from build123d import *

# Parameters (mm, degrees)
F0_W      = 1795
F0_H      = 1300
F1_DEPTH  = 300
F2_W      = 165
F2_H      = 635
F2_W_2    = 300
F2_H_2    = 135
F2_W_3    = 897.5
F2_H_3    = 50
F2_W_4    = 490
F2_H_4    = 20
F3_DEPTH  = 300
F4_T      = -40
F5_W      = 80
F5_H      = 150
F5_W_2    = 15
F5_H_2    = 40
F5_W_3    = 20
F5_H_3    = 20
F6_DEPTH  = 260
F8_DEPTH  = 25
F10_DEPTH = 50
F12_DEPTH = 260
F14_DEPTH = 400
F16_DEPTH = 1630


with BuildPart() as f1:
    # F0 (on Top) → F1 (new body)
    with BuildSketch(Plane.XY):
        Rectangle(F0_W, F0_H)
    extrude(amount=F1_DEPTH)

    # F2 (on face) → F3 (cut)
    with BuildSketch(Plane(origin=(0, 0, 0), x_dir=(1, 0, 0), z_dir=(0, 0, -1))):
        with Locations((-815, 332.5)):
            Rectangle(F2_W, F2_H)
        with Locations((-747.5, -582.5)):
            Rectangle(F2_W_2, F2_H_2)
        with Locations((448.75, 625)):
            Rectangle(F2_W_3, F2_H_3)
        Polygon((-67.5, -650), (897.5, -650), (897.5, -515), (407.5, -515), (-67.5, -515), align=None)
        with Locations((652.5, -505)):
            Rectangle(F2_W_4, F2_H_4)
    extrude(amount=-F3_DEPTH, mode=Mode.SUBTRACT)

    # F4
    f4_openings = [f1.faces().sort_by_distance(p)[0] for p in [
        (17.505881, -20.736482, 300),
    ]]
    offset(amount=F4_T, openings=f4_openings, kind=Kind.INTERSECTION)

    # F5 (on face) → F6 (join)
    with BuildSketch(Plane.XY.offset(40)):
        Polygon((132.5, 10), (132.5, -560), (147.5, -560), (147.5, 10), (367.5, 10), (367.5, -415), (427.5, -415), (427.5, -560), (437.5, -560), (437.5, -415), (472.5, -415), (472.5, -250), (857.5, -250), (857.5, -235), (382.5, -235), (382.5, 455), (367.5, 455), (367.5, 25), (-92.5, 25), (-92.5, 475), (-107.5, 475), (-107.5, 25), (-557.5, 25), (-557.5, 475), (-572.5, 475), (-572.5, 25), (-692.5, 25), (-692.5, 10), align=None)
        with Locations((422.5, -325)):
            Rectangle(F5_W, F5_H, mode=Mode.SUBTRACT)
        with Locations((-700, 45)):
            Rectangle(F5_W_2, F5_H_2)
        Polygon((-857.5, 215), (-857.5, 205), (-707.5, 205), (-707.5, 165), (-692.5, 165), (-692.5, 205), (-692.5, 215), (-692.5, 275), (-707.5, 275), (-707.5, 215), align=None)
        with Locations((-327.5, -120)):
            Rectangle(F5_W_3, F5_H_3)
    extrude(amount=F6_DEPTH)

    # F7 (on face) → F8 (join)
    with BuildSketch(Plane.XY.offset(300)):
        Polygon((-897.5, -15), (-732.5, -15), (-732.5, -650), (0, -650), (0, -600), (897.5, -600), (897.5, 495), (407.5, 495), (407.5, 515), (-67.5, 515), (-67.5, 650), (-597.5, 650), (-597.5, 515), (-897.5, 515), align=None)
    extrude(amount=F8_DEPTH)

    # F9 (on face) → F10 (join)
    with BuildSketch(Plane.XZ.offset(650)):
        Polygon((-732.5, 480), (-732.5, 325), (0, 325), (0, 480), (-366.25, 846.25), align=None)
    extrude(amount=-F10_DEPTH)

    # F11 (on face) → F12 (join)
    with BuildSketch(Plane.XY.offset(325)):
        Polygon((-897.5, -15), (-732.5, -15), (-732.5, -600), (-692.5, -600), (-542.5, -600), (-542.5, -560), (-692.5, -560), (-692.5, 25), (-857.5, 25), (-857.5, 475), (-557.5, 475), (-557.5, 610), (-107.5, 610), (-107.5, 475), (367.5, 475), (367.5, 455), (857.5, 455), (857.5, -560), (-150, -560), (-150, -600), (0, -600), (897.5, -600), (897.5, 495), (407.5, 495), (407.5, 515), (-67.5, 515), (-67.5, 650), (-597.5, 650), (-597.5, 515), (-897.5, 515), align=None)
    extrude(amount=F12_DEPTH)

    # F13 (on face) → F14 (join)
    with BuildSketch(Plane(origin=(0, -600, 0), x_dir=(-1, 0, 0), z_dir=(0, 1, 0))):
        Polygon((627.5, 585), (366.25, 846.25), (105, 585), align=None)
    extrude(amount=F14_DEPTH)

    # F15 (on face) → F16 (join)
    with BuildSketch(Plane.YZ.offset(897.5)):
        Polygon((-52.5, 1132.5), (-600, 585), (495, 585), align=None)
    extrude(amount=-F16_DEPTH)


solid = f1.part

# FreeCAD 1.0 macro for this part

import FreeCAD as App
import Part
import Sketcher

V = App.Vector
Q = App.Units.Quantity


def faces_at(feature, points):
    """Names of the faces that lie closest to the given points."""
    faces = feature.Shape.Faces
    near = lambda p: min(range(len(faces)), key=lambda i: faces[i].distToShape(Part.Vertex(*p))[0])
    return sorted({f"Face{near(p) + 1}" for p in points})


def add_polygon(sketch, points):
    """Adds a closed chain of lines whose ends are joined by coincident constraints."""
    first, n = sketch.GeometryCount, len(points)
    for a, b in zip(points, points[1:] + points[:1]):
        sketch.addGeometry(Part.LineSegment(App.Vector(*a, 0), App.Vector(*b, 0)), False)
    for i in range(n):
        sketch.addConstraint(Sketcher.Constraint("Coincident", first + i, 2, first + (i + 1) % n, 1))

doc = App.newDocument("Part")
body = doc.addObject("PartDesign::Body", "Body")

# Sketch on XY plane
sketch1 = body.newObject("Sketcher::SketchObject", "Sketch")
sketch1.AttachmentSupport = (doc.getObject("XY_Plane"), [""])
sketch1.MapMode = "FlatFace"
add_polygon(sketch1, [(-898, 650), (-898, -650), (898, -650), (898, 650)])  # lines 0-3
sketch1.addConstraint([
    Sketcher.Constraint("Vertical", 0),
    Sketcher.Constraint("Horizontal", 1),
    Sketcher.Constraint("Vertical", 2),
    Sketcher.Constraint("Horizontal", 3),
    Sketcher.Constraint("Symmetric", 0, 2, 2, 2, -1, 1),
    Sketcher.Constraint("DistanceX", 1, 1, 1, 2, Q("1795 mm")),
    Sketcher.Constraint("DistanceY", 0, 2, 0, 1, Q("1300 mm")),
])
pad1 = body.newObject("PartDesign::Pad", "Pad")
pad1.Profile = sketch1
pad1.Length = 300

# Sketch on XY plane
sketch2 = body.newObject("Sketcher::SketchObject", "Sketch001")
sketch2.AttachmentSupport = (doc.getObject("XY_Plane"), [""])
sketch2.MapMode = "FlatFace"
add_polygon(sketch2, [(-898, -650), (-898, -15), (-732, -15), (-732, -650)])  # lines 0-3
add_polygon(sketch2, [(-898, 515), (-898, 650), (-598, 650), (-598, 515)])  # lines 4-7
add_polygon(sketch2, [(0, -650), (0, -600), (898, -600), (898, -650)])  # lines 8-11
add_polygon(sketch2, [(-68, 650), (898, 650), (898, 495), (408, 495), (408, 515), (-68, 515)])  # lines 12-17
sketch2.addConstraint([
    Sketcher.Constraint("Vertical", 0),
    Sketcher.Constraint("Horizontal", 1),
    Sketcher.Constraint("Vertical", 2),
    Sketcher.Constraint("Horizontal", 3),
    Sketcher.Constraint("Vertical", 4),
    Sketcher.Constraint("Horizontal", 5),
    Sketcher.Constraint("Vertical", 6),
    Sketcher.Constraint("Horizontal", 7),
    Sketcher.Constraint("Vertical", 8),
    Sketcher.Constraint("Horizontal", 9),
    Sketcher.Constraint("Vertical", 10),
    Sketcher.Constraint("Horizontal", 11),
    Sketcher.Constraint("Horizontal", 12),
    Sketcher.Constraint("Vertical", 13),
    Sketcher.Constraint("Horizontal", 14),
    Sketcher.Constraint("Vertical", 15),
    Sketcher.Constraint("Horizontal", 16),
    Sketcher.Constraint("Vertical", 17),
    Sketcher.Constraint("Symmetric", 4, 2, 10, 2, -1, 1),
    Sketcher.Constraint("Symmetric", 3, 2, 12, 2, -1, 1),
    Sketcher.Constraint("Symmetric", 3, 2, 10, 2, -2),
    Sketcher.Constraint("PointOnObject", 8, 2, -2),
    Sketcher.Constraint("Horizontal", 7, 2, 15, 2),
    Sketcher.Constraint("DistanceX", 1, 1, 1, 2, Q("165 mm")),
    Sketcher.Constraint("DistanceX", 5, 1, 5, 2, Q("300 mm")),
    Sketcher.Constraint("DistanceX", 12, 1, 12, 2, Q("965 mm")),
    Sketcher.Constraint("DistanceX", 14, 2, 14, 1, Q("490 mm")),
    Sketcher.Constraint("DistanceY", 0, 1, 0, 2, Q("635 mm")),
    Sketcher.Constraint("DistanceY", 4, 1, 4, 2, Q("135 mm")),
    Sketcher.Constraint("DistanceY", 8, 1, 8, 2, Q("50 mm")),
    Sketcher.Constraint("DistanceY", 13, 2, 13, 1, Q("155 mm")),
    Sketcher.Constraint("DistanceX", 9, 1, 9, 2, Q("897.5 mm")),
    Sketcher.Constraint("DistanceY", 0, 2, -1, 1, Q("15 mm")),
])
pocket1 = body.newObject("PartDesign::Pocket", "Pocket")
pocket1.Profile = sketch2
pocket1.Length = 300
pocket1.Reversed = True
doc.recompute()

thickness = body.newObject("PartDesign::Thickness", "Thickness")
thickness.Base = (pocket1, faces_at(pocket1, [(0, 0, 300)]))
thickness.Value = 40
thickness.Reversed = True
thickness.Join = "Intersection"

# Sketch on XY plane
sketch3 = body.newObject("Sketcher::SketchObject", "Sketch002")
sketch3.AttachmentSupport = (doc.getObject("XY_Plane"), [""])
sketch3.MapMode = "FlatFace"
sketch3.AttachmentOffset = App.Placement(V(0, 0, 40), App.Rotation())
add_polygon(sketch3, [(132, 10), (132, -560), (148, -560), (148, 10), (368, 10), (368, -415), (428, -415), (428, -560), (438, -560), (438, -415), (472, -415), (472, -250), (858, -250), (858, -235), (382, -235), (382, 455), (368, 455), (368, 25), (-92, 25), (-92, 475), (-108, 475), (-108, 25), (-558, 25), (-558, 475), (-572, 475), (-572, 25), (-692, 25), (-692, 10)])  # lines 0-27
add_polygon(sketch3, [(462, -400), (382, -400), (382, -250), (462, -250)])  # lines 28-31
add_polygon(sketch3, [(-708, 65), (-708, 25), (-692, 25), (-692, 65)])  # lines 32-35
add_polygon(sketch3, [(-858, 215), (-858, 205), (-708, 205), (-708, 165), (-692, 165), (-692, 275), (-708, 275), (-708, 215)])  # lines 36-43
add_polygon(sketch3, [(-338, -110), (-338, -130), (-318, -130), (-318, -110)])  # lines 44-47
sketch3.addConstraint([
    Sketcher.Constraint("Vertical", 0),
    Sketcher.Constraint("Horizontal", 1),
    Sketcher.Constraint("Vertical", 2),
    Sketcher.Constraint("Horizontal", 3),
    Sketcher.Constraint("Vertical", 4),
    Sketcher.Constraint("Horizontal", 5),
    Sketcher.Constraint("Vertical", 6),
    Sketcher.Constraint("Horizontal", 7),
    Sketcher.Constraint("Vertical", 8),
    Sketcher.Constraint("Horizontal", 9),
    Sketcher.Constraint("Vertical", 10),
    Sketcher.Constraint("Horizontal", 11),
    Sketcher.Constraint("Vertical", 12),
    Sketcher.Constraint("Horizontal", 13),
    Sketcher.Constraint("Vertical", 14),
    Sketcher.Constraint("Horizontal", 15),
    Sketcher.Constraint("Vertical", 16),
    Sketcher.Constraint("Horizontal", 17),
    Sketcher.Constraint("Vertical", 18),
    Sketcher.Constraint("Horizontal", 19),
    Sketcher.Constraint("Vertical", 20),
    Sketcher.Constraint("Horizontal", 21),
    Sketcher.Constraint("Vertical", 22),
    Sketcher.Constraint("Horizontal", 23),
    Sketcher.Constraint("Vertical", 24),
    Sketcher.Constraint("Horizontal", 25),
    Sketcher.Constraint("Vertical", 26),
    Sketcher.Constraint("Horizontal", 27),
    Sketcher.Constraint("Horizontal", 28),
    Sketcher.Constraint("Vertical", 29),
    Sketcher.Constraint("Horizontal", 30),
    Sketcher.Constraint("Vertical", 31),
    Sketcher.Constraint("Vertical", 32),
    Sketcher.Constraint("Horizontal", 33),
    Sketcher.Constraint("Vertical", 34),
    Sketcher.Constraint("Horizontal", 35),
    Sketcher.Constraint("Vertical", 36),
    Sketcher.Constraint("Horizontal", 37),
    Sketcher.Constraint("Vertical", 38),
    Sketcher.Constraint("Horizontal", 39),
    Sketcher.Constraint("Vertical", 40),
    Sketcher.Constraint("Horizontal", 41),
    Sketcher.Constraint("Vertical", 42),
    Sketcher.Constraint("Horizontal", 43),
    Sketcher.Constraint("Vertical", 44),
    Sketcher.Constraint("Horizontal", 45),
    Sketcher.Constraint("Vertical", 46),
    Sketcher.Constraint("Horizontal", 47),
    Sketcher.Constraint("Coincident", 33, 2, 25, 2),
    Sketcher.Constraint("Horizontal", 1, 2, 6, 2),
    Sketcher.Constraint("Horizontal", 5, 2, 8, 2),
    Sketcher.Constraint("Horizontal", 17, 2, 20, 2),
    Sketcher.Constraint("Horizontal", 19, 2, 22, 2),
    Sketcher.Constraint("Horizontal", 21, 2, 24, 2),
    Sketcher.Constraint("Horizontal", 3, 2, 26, 2),
    Sketcher.Constraint("Horizontal", 11, 2, 29, 2),
    Sketcher.Constraint("Vertical", 4, 2, 15, 2),
    Sketcher.Constraint("Vertical", 14, 2, 28, 2),
    Sketcher.Constraint("Vertical", 35, 2, 37, 2),
    Sketcher.Constraint("Vertical", 34, 2, 39, 2),
    Sketcher.Constraint("Vertical", 38, 2, 41, 2),
    Sketcher.Constraint("Equal", 1, 15),
    Sketcher.Constraint("Equal", 15, 19),
    Sketcher.Constraint("Equal", 19, 23),
    Sketcher.Constraint("Equal", 23, 33),
    Sketcher.Constraint("Equal", 41, 12),
    Sketcher.Constraint("Equal", 21, 18),
    Sketcher.Constraint("Equal", 12, 26),
    Sketcher.Constraint("Equal", 43, 29),
    Sketcher.Constraint("Equal", 7, 36),
    Sketcher.Constraint("Equal", 34, 38),
    Sketcher.Constraint("Equal", 5, 42),
    Sketcher.Constraint("Equal", 47, 44),
    Sketcher.Constraint("DistanceX", 1, 1, 1, 2, Q("15 mm")),
    Sketcher.Constraint("DistanceX", 3, 1, 3, 2, Q("220 mm")),
    Sketcher.Constraint("DistanceX", 5, 1, 5, 2, Q("60 mm")),
    Sketcher.Constraint("DistanceX", 7, 1, 7, 2, Q("10 mm")),
    Sketcher.Constraint("DistanceX", 9, 1, 9, 2, Q("35 mm")),
    Sketcher.Constraint("DistanceX", 11, 1, 11, 2, Q("385 mm")),
    Sketcher.Constraint("DistanceX", 17, 2, 17, 1, Q("460 mm")),
    Sketcher.Constraint("DistanceX", 21, 2, 21, 1, Q("450 mm")),
    Sketcher.Constraint("DistanceX", 25, 2, 25, 1, Q("120 mm")),
    Sketcher.Constraint("DistanceX", 28, 2, 28, 1, Q("80 mm")),
    Sketcher.Constraint("DistanceX", 37, 1, 37, 2, Q("150 mm")),
    Sketcher.Constraint("DistanceX", 45, 1, 45, 2, Q("20 mm")),
    Sketcher.Constraint("DistanceY", 0, 2, 0, 1, Q("570 mm")),
    Sketcher.Constraint("DistanceY", 4, 2, 4, 1, Q("425 mm")),
    Sketcher.Constraint("DistanceY", 10, 1, 10, 2, Q("165 mm")),
    Sketcher.Constraint("DistanceY", 14, 1, 14, 2, Q("690 mm")),
    Sketcher.Constraint("DistanceY", 32, 2, 32, 1, Q("40 mm")),
    Sketcher.Constraint("DistanceY", 0, 2, -1, 1, Q("560 mm")),
    Sketcher.Constraint("DistanceY", -1, 1, 36, 2, Q("205 mm")),
    Sketcher.Constraint("DistanceY", 44, 2, -1, 1, Q("130 mm")),
    Sketcher.Constraint("DistanceX", 21, 2, 44, 2, Q("220 mm")),
    Sketcher.Constraint("DistanceX", -1, 1, 0, 2, Q("132.5 mm")),
])
pad2 = body.newObject("PartDesign::Pad", "Pad001")
pad2.Profile = sketch3
pad2.Length = 260

# Sketch on XY plane
sketch4 = body.newObject("Sketcher::SketchObject", "Sketch003")
sketch4.AttachmentSupport = (doc.getObject("XY_Plane"), [""])
sketch4.MapMode = "FlatFace"
sketch4.AttachmentOffset = App.Placement(V(0, 0, 300), App.Rotation())
add_polygon(sketch4, [(-898, -15), (-732, -15), (-732, -650), (0, -650), (0, -600), (898, -600), (898, 495), (408, 495), (408, 515), (-68, 515), (-68, 650), (-598, 650), (-598, 515), (-898, 515)])  # lines 0-13
sketch4.addConstraint([
    Sketcher.Constraint("Horizontal", 0),
    Sketcher.Constraint("Vertical", 1),
    Sketcher.Constraint("Horizontal", 2),
    Sketcher.Constraint("Vertical", 3),
    Sketcher.Constraint("Horizontal", 4),
    Sketcher.Constraint("Vertical", 5),
    Sketcher.Constraint("Horizontal", 6),
    Sketcher.Constraint("Vertical", 7),
    Sketcher.Constraint("Horizontal", 8),
    Sketcher.Constraint("Vertical", 9),
    Sketcher.Constraint("Horizontal", 10),
    Sketcher.Constraint("Vertical", 11),
    Sketcher.Constraint("Horizontal", 12),
    Sketcher.Constraint("Vertical", 13),
    Sketcher.Constraint("PointOnObject", 2, 2, -2),
    Sketcher.Constraint("Horizontal", 8, 2, 11, 2),
    Sketcher.Constraint("Equal", 10, 13),
    Sketcher.Constraint("DistanceX", 0, 1, 0, 2, Q("165 mm")),
    Sketcher.Constraint("DistanceX", 6, 2, 6, 1, Q("490 mm")),
    Sketcher.Constraint("DistanceX", 8, 2, 8, 1, Q("475 mm")),
    Sketcher.Constraint("DistanceX", 10, 2, 10, 1, Q("530 mm")),
    Sketcher.Constraint("DistanceX", 12, 2, 12, 1, Q("300 mm")),
    Sketcher.Constraint("DistanceY", 1, 2, 1, 1, Q("635 mm")),
    Sketcher.Constraint("DistanceY", 3, 1, 3, 2, Q("50 mm")),
    Sketcher.Constraint("DistanceY", 5, 1, 5, 2, Q("1095 mm")),
    Sketcher.Constraint("DistanceY", 9, 1, 9, 2, Q("135 mm")),
    Sketcher.Constraint("DistanceX", 2, 1, 2, 2, Q("732.5 mm")),
    Sketcher.Constraint("DistanceY", 0, 2, -1, 1, Q("15 mm")),
])
pad3 = body.newObject("PartDesign::Pad", "Pad002")
pad3.Profile = sketch4
pad3.Length = 25

# Sketch on XZ plane
sketch5 = body.newObject("Sketcher::SketchObject", "Sketch004")
sketch5.AttachmentSupport = (doc.getObject("XZ_Plane"), [""])
sketch5.MapMode = "FlatFace"
sketch5.AttachmentOffset = App.Placement(V(0, 0, 650), App.Rotation())
add_polygon(sketch5, [(-732, 480), (-732, 325), (0, 325), (0, 480), (-366, 846)])  # lines 0-4
sketch5.addConstraint([
    Sketcher.Constraint("Vertical", 0),
    Sketcher.Constraint("Horizontal", 1),
    Sketcher.Constraint("Vertical", 2),
    Sketcher.Constraint("PointOnObject", 1, 2, -2),
    Sketcher.Constraint("Perpendicular", 3, 4),
    Sketcher.Constraint("Horizontal", 2, 2, 4, 2),
    Sketcher.Constraint("Equal", 3, 4),
    Sketcher.Constraint("DistanceY", 0, 2, 0, 1, Q("155 mm")),
    Sketcher.Constraint("DistanceX", 1, 1, 1, 2, Q("732.5 mm")),
    Sketcher.Constraint("DistanceY", -1, 1, 0, 2, Q("325 mm")),
])
pad4 = body.newObject("PartDesign::Pad", "Pad003")
pad4.Profile = sketch5
pad4.Length = 50
pad4.Reversed = True

# Sketch on XY plane
sketch6 = body.newObject("Sketcher::SketchObject", "Sketch005")
sketch6.AttachmentSupport = (doc.getObject("XY_Plane"), [""])
sketch6.MapMode = "FlatFace"
sketch6.AttachmentOffset = App.Placement(V(0, 0, 325), App.Rotation())
add_polygon(sketch6, [(-898, -15), (-732, -15), (-732, -600), (-542, -600), (-542, -560), (-692, -560), (-692, 25), (-858, 25), (-858, 475), (-558, 475), (-558, 610), (-108, 610), (-108, 475), (368, 475), (368, 455), (858, 455), (858, -560), (-150, -560), (-150, -600), (898, -600), (898, 495), (408, 495), (408, 515), (-68, 515), (-68, 650), (-598, 650), (-598, 515), (-898, 515)])  # lines 0-27
sketch6.addConstraint([
    Sketcher.Constraint("Horizontal", 0),
    Sketcher.Constraint("Vertical", 1),
    Sketcher.Constraint("Horizontal", 2),
    Sketcher.Constraint("Vertical", 3),
    Sketcher.Constraint("Horizontal", 4),
    Sketcher.Constraint("Vertical", 5),
    Sketcher.Constraint("Horizontal", 6),
    Sketcher.Constraint("Vertical", 7),
    Sketcher.Constraint("Horizontal", 8),
    Sketcher.Constraint("Vertical", 9),
    Sketcher.Constraint("Horizontal", 10),
    Sketcher.Constraint("Vertical", 11),
    Sketcher.Constraint("Horizontal", 12),
    Sketcher.Constraint("Vertical", 13),
    Sketcher.Constraint("Horizontal", 14),
    Sketcher.Constraint("Vertical", 15),
    Sketcher.Constraint("Horizontal", 16),
    Sketcher.Constraint("Vertical", 17),
    Sketcher.Constraint("Horizontal", 18),
    Sketcher.Constraint("Vertical", 19),
    Sketcher.Constraint("Horizontal", 20),
    Sketcher.Constraint("Vertical", 21),
    Sketcher.Constraint("Horizontal", 22),
    Sketcher.Constraint("Vertical", 23),
    Sketcher.Constraint("Horizontal", 24),
    Sketcher.Constraint("Vertical", 25),
    Sketcher.Constraint("Horizontal", 26),
    Sketcher.Constraint("Vertical", 27),
    Sketcher.Constraint("Horizontal", 8, 2, 11, 2),
    Sketcher.Constraint("Horizontal", 4, 2, 15, 2),
    Sketcher.Constraint("Horizontal", 2, 2, 17, 2),
    Sketcher.Constraint("Horizontal", 22, 2, 25, 2),
    Sketcher.Constraint("Equal", 0, 6),
    Sketcher.Constraint("Equal", 14, 20),
    Sketcher.Constraint("Equal", 12, 22),
    Sketcher.Constraint("Equal", 8, 26),
    Sketcher.Constraint("Equal", 1, 5),
    Sketcher.Constraint("Equal", 10, 7),
    Sketcher.Constraint("Equal", 13, 21),
    Sketcher.Constraint("Equal", 11, 23),
    Sketcher.Constraint("Equal", 24, 27),
    Sketcher.Constraint("DistanceX", 0, 1, 0, 2, Q("165 mm")),
    Sketcher.Constraint("DistanceX", 2, 1, 2, 2, Q("190 mm")),
    Sketcher.Constraint("DistanceX", 4, 2, 4, 1, Q("150 mm")),
    Sketcher.Constraint("DistanceX", 8, 1, 8, 2, Q("300 mm")),
    Sketcher.Constraint("DistanceX", 10, 1, 10, 2, Q("450 mm")),
    Sketcher.Constraint("DistanceX", 12, 1, 12, 2, Q("475 mm")),
    Sketcher.Constraint("DistanceX", 14, 1, 14, 2, Q("490 mm")),
    Sketcher.Constraint("DistanceX", 24, 2, 24, 1, Q("530 mm")),
    Sketcher.Constraint("DistanceY", 1, 2, 1, 1, Q("585 mm")),
    Sketcher.Constraint("DistanceY", 3, 1, 3, 2, Q("40 mm")),
    Sketcher.Constraint("DistanceY", 9, 1, 9, 2, Q("135 mm")),
    Sketcher.Constraint("DistanceY", 13, 2, 13, 1, Q("20 mm")),
    Sketcher.Constraint("DistanceX", 16, 2, 16, 1, Q("1007.5 mm")),
    Sketcher.Constraint("DistanceY", 0, 2, -1, 1, Q("15 mm")),
    Sketcher.Constraint("DistanceX", 16, 2, -1, 1, Q("150 mm")),
])
pad5 = body.newObject("PartDesign::Pad", "Pad004")
pad5.Profile = sketch6
pad5.Length = 260

# Sketch on XZ plane
sketch7 = body.newObject("Sketcher::SketchObject", "Sketch006")
sketch7.AttachmentSupport = (doc.getObject("XZ_Plane"), [""])
sketch7.MapMode = "FlatFace"
sketch7.AttachmentOffset = App.Placement(V(0, 0, 600), App.Rotation())
add_polygon(sketch7, [(-628, 585), (-366, 846), (-105, 585)])  # lines 0-2
sketch7.addConstraint([
    Sketcher.Constraint("Horizontal", 2),
    Sketcher.Constraint("Perpendicular", 0, 1),
    Sketcher.Constraint("Equal", 0, 1),
    Sketcher.Constraint("DistanceX", 2, 2, 2, 1, Q("522.5 mm")),
    Sketcher.Constraint("DistanceX", 1, 2, -1, 1, Q("105 mm")),
    Sketcher.Constraint("DistanceY", -1, 1, 1, 2, Q("585 mm")),
])
pad6 = body.newObject("PartDesign::Pad", "Pad005")
pad6.Profile = sketch7
pad6.Length = 400
pad6.Reversed = True

# Sketch on YZ plane
sketch8 = body.newObject("Sketcher::SketchObject", "Sketch007")
sketch8.AttachmentSupport = (doc.getObject("YZ_Plane"), [""])
sketch8.MapMode = "FlatFace"
sketch8.AttachmentOffset = App.Placement(V(0, 0, 897.5), App.Rotation())
add_polygon(sketch8, [(-52, 1132), (-600, 585), (495, 585)])  # lines 0-2
sketch8.addConstraint([
    Sketcher.Constraint("Horizontal", 1),
    Sketcher.Constraint("Perpendicular", 0, 2),
    Sketcher.Constraint("Equal", 0, 2),
    Sketcher.Constraint("DistanceX", 1, 1, 1, 2, Q("1095 mm")),
    Sketcher.Constraint("DistanceX", 0, 2, -1, 1, Q("600 mm")),
    Sketcher.Constraint("DistanceY", -1, 1, 0, 2, Q("585 mm")),
])
pad7 = body.newObject("PartDesign::Pad", "Pad006")
pad7.Profile = sketch8
pad7.Length = 1630
pad7.Reversed = True

doc.recompute()
